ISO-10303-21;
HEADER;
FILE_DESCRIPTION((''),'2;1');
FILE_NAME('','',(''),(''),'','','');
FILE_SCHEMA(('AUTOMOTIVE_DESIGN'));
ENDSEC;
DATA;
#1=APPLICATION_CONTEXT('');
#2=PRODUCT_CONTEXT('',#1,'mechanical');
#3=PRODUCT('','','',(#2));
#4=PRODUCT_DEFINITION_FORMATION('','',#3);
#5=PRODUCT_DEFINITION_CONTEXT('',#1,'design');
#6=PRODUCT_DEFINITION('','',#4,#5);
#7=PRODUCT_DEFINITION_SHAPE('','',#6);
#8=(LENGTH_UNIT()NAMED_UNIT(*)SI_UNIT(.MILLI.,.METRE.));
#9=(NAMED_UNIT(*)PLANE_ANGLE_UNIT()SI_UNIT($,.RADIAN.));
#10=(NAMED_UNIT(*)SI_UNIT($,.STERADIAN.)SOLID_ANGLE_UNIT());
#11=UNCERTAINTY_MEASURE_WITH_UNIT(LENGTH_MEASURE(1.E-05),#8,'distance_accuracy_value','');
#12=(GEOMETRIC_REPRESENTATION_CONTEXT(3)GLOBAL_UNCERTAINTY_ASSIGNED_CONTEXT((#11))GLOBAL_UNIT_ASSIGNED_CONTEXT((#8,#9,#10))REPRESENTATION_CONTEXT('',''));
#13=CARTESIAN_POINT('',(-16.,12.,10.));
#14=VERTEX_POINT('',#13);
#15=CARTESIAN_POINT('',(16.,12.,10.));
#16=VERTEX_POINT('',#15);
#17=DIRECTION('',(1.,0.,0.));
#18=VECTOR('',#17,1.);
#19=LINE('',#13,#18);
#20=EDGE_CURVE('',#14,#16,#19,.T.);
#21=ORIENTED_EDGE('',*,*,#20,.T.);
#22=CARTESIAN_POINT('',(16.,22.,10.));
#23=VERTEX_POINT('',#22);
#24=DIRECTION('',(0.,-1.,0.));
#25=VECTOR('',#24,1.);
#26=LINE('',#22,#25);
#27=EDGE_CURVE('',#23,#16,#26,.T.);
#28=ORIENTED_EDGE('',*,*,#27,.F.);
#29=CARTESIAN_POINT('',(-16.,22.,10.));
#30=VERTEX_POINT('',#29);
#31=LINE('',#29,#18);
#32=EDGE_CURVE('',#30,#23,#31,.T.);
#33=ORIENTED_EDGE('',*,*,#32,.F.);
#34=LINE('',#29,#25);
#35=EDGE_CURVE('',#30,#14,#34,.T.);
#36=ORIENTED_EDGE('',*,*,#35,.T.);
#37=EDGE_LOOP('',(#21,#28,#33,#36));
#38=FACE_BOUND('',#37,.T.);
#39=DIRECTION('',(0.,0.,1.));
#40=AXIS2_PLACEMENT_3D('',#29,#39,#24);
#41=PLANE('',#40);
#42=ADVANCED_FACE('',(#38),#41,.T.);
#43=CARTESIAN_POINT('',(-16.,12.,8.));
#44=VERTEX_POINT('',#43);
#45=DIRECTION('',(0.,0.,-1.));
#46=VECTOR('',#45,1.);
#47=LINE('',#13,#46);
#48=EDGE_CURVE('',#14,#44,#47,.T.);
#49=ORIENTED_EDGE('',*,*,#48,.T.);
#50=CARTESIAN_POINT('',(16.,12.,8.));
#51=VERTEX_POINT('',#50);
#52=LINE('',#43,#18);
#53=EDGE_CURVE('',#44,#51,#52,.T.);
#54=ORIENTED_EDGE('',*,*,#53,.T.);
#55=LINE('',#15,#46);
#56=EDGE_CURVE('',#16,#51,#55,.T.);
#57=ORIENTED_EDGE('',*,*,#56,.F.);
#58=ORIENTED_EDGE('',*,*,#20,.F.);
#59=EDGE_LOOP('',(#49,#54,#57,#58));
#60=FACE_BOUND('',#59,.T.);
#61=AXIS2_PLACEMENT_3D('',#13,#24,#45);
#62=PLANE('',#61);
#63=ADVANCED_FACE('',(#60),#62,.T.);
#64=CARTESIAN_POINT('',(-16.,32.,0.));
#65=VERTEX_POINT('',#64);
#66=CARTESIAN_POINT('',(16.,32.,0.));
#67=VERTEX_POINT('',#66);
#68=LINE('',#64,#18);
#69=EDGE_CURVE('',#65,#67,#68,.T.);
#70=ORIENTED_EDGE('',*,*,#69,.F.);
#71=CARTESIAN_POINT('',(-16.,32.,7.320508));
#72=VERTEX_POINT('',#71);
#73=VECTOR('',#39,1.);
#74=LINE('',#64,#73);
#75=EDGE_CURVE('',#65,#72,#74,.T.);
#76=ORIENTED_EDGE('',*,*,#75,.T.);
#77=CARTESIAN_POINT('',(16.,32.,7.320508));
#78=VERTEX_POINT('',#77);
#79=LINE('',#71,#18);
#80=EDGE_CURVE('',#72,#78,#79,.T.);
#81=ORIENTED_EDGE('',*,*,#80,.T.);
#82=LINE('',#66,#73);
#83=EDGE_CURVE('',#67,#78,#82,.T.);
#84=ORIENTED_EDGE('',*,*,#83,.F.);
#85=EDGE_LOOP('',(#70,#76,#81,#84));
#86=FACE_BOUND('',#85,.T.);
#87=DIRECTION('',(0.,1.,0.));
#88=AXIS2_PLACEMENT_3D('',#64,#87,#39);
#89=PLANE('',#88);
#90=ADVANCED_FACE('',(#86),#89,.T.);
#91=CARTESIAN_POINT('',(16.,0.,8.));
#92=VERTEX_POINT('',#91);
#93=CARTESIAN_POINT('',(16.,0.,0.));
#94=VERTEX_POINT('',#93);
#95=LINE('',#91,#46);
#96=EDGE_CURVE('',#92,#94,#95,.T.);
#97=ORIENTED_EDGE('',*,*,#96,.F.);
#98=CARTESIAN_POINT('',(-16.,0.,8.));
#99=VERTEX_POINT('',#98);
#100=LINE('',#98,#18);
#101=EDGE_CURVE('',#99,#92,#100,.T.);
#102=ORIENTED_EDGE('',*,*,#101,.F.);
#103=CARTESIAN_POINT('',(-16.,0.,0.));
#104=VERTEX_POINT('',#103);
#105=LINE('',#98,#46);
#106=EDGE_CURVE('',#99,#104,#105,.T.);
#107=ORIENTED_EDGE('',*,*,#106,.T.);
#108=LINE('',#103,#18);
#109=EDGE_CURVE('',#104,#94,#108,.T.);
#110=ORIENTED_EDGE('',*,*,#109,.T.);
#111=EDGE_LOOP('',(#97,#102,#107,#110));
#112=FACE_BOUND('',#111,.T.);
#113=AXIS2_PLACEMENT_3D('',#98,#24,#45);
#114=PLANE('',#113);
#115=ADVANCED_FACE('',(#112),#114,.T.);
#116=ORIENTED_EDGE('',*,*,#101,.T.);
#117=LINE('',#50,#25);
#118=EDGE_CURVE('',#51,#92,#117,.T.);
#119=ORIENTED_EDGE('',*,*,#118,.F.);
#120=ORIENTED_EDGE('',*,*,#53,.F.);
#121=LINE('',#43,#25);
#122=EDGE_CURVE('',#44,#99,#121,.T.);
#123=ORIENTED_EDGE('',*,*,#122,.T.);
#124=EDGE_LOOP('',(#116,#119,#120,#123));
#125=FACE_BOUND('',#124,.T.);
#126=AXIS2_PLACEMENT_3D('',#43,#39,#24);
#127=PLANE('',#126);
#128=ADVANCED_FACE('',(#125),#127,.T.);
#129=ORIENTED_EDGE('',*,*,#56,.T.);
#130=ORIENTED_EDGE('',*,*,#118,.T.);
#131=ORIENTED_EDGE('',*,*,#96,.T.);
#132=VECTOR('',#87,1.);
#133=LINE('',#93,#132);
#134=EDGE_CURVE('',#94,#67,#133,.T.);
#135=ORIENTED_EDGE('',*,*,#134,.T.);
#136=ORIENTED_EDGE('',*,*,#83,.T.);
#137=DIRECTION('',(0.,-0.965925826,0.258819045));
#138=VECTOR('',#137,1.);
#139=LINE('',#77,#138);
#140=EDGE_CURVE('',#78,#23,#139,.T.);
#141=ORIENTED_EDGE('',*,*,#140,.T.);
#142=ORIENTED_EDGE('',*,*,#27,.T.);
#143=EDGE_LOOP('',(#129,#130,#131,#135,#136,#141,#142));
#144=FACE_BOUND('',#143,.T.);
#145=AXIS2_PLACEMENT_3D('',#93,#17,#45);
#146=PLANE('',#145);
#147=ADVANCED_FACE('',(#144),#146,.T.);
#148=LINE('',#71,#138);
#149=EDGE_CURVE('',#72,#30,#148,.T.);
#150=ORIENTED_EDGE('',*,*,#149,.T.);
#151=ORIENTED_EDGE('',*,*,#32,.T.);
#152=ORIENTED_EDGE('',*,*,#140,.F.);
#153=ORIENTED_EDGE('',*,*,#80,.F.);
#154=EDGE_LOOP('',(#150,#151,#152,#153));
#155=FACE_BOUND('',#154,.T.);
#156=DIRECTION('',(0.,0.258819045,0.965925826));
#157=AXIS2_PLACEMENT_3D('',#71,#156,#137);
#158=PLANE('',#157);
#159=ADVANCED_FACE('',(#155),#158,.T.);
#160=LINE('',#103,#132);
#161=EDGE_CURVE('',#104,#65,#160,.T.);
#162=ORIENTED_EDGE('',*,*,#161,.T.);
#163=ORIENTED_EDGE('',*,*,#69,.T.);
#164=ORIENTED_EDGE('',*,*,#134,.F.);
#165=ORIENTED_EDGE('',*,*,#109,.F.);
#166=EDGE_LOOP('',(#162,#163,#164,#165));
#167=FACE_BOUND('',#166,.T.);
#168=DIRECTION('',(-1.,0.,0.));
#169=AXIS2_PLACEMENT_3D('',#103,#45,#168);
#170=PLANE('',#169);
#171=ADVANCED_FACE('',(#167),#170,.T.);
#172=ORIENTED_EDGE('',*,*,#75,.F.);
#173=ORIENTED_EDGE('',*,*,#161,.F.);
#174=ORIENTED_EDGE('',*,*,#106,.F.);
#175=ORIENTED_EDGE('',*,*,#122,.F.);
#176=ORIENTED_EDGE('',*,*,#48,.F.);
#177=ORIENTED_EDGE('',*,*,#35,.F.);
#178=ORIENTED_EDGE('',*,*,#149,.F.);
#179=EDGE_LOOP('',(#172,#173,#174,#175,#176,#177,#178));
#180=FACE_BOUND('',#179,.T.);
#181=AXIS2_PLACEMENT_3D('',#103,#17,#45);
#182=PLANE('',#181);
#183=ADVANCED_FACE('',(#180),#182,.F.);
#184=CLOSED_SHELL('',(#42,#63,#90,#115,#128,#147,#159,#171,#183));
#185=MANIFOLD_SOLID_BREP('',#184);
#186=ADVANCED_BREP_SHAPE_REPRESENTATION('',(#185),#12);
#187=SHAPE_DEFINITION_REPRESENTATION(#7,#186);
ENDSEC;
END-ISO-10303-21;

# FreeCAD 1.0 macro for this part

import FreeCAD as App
import Part
import Sketcher
Q = App.Units.Quantity


def add_polygon(sketch, points):
    """Adds a closed chain of lines whose ends are joined by coincident constraints."""
    first, n = sketch.GeometryCount, len(points)
    for a, b in zip(points, points[1:] + points[:1]):
        sketch.addGeometry(Part.LineSegment(App.Vector(*a, 0), App.Vector(*b, 0)), False)
    for i in range(n):
        sketch.addConstraint(Sketcher.Constraint("Coincident", first + i, 2, first + (i + 1) % n, 1))

doc = App.newDocument("Part")
body = doc.addObject("PartDesign::Body", "Body")

sketch1 = doc.addObject("Sketcher::SketchObject", "Sketch")
body.addObject(sketch1)
sketch1.AttachmentSupport = (doc.YZ_Plane, [""])
sketch1.MapMode = "FlatFace"
add_polygon(sketch1, [(0, 0), (32, 0), (32, 7.3), (22, 10), (12, 10), (12, 8), (0, 8)])
sketch1.addConstraint([
    Sketcher.Constraint("Horizontal", 0),
    Sketcher.Constraint("Vertical", 1),
    Sketcher.Constraint("Horizontal", 3),
    Sketcher.Constraint("Vertical", 4),
    Sketcher.Constraint("Horizontal", 5),
    Sketcher.Constraint("Vertical", 6),
    Sketcher.Constraint("Coincident", 6, 2, -1, 1),
    Sketcher.Constraint("DistanceX", 0, 1, 0, 2, Q("32 mm")),
    Sketcher.Constraint("DistanceX", 3, 2, 3, 1, Q("10 mm")),
    Sketcher.Constraint("DistanceX", 5, 2, 5, 1, Q("12 mm")),
    Sketcher.Constraint("DistanceY", 4, 2, 4, 1, Q("2 mm")),
    Sketcher.Constraint("DistanceY", 6, 2, 6, 1, Q("8 mm")),
    Sketcher.Constraint("Angle", 2, Q("165 deg")),
])
pad1 = doc.addObject("PartDesign::Pad", "Pad")
body.addObject(pad1)
pad1.Profile = sketch1
pad1.Type = "TwoLengths"
pad1.Length = 16
pad1.Length2 = 16

doc.recompute()
